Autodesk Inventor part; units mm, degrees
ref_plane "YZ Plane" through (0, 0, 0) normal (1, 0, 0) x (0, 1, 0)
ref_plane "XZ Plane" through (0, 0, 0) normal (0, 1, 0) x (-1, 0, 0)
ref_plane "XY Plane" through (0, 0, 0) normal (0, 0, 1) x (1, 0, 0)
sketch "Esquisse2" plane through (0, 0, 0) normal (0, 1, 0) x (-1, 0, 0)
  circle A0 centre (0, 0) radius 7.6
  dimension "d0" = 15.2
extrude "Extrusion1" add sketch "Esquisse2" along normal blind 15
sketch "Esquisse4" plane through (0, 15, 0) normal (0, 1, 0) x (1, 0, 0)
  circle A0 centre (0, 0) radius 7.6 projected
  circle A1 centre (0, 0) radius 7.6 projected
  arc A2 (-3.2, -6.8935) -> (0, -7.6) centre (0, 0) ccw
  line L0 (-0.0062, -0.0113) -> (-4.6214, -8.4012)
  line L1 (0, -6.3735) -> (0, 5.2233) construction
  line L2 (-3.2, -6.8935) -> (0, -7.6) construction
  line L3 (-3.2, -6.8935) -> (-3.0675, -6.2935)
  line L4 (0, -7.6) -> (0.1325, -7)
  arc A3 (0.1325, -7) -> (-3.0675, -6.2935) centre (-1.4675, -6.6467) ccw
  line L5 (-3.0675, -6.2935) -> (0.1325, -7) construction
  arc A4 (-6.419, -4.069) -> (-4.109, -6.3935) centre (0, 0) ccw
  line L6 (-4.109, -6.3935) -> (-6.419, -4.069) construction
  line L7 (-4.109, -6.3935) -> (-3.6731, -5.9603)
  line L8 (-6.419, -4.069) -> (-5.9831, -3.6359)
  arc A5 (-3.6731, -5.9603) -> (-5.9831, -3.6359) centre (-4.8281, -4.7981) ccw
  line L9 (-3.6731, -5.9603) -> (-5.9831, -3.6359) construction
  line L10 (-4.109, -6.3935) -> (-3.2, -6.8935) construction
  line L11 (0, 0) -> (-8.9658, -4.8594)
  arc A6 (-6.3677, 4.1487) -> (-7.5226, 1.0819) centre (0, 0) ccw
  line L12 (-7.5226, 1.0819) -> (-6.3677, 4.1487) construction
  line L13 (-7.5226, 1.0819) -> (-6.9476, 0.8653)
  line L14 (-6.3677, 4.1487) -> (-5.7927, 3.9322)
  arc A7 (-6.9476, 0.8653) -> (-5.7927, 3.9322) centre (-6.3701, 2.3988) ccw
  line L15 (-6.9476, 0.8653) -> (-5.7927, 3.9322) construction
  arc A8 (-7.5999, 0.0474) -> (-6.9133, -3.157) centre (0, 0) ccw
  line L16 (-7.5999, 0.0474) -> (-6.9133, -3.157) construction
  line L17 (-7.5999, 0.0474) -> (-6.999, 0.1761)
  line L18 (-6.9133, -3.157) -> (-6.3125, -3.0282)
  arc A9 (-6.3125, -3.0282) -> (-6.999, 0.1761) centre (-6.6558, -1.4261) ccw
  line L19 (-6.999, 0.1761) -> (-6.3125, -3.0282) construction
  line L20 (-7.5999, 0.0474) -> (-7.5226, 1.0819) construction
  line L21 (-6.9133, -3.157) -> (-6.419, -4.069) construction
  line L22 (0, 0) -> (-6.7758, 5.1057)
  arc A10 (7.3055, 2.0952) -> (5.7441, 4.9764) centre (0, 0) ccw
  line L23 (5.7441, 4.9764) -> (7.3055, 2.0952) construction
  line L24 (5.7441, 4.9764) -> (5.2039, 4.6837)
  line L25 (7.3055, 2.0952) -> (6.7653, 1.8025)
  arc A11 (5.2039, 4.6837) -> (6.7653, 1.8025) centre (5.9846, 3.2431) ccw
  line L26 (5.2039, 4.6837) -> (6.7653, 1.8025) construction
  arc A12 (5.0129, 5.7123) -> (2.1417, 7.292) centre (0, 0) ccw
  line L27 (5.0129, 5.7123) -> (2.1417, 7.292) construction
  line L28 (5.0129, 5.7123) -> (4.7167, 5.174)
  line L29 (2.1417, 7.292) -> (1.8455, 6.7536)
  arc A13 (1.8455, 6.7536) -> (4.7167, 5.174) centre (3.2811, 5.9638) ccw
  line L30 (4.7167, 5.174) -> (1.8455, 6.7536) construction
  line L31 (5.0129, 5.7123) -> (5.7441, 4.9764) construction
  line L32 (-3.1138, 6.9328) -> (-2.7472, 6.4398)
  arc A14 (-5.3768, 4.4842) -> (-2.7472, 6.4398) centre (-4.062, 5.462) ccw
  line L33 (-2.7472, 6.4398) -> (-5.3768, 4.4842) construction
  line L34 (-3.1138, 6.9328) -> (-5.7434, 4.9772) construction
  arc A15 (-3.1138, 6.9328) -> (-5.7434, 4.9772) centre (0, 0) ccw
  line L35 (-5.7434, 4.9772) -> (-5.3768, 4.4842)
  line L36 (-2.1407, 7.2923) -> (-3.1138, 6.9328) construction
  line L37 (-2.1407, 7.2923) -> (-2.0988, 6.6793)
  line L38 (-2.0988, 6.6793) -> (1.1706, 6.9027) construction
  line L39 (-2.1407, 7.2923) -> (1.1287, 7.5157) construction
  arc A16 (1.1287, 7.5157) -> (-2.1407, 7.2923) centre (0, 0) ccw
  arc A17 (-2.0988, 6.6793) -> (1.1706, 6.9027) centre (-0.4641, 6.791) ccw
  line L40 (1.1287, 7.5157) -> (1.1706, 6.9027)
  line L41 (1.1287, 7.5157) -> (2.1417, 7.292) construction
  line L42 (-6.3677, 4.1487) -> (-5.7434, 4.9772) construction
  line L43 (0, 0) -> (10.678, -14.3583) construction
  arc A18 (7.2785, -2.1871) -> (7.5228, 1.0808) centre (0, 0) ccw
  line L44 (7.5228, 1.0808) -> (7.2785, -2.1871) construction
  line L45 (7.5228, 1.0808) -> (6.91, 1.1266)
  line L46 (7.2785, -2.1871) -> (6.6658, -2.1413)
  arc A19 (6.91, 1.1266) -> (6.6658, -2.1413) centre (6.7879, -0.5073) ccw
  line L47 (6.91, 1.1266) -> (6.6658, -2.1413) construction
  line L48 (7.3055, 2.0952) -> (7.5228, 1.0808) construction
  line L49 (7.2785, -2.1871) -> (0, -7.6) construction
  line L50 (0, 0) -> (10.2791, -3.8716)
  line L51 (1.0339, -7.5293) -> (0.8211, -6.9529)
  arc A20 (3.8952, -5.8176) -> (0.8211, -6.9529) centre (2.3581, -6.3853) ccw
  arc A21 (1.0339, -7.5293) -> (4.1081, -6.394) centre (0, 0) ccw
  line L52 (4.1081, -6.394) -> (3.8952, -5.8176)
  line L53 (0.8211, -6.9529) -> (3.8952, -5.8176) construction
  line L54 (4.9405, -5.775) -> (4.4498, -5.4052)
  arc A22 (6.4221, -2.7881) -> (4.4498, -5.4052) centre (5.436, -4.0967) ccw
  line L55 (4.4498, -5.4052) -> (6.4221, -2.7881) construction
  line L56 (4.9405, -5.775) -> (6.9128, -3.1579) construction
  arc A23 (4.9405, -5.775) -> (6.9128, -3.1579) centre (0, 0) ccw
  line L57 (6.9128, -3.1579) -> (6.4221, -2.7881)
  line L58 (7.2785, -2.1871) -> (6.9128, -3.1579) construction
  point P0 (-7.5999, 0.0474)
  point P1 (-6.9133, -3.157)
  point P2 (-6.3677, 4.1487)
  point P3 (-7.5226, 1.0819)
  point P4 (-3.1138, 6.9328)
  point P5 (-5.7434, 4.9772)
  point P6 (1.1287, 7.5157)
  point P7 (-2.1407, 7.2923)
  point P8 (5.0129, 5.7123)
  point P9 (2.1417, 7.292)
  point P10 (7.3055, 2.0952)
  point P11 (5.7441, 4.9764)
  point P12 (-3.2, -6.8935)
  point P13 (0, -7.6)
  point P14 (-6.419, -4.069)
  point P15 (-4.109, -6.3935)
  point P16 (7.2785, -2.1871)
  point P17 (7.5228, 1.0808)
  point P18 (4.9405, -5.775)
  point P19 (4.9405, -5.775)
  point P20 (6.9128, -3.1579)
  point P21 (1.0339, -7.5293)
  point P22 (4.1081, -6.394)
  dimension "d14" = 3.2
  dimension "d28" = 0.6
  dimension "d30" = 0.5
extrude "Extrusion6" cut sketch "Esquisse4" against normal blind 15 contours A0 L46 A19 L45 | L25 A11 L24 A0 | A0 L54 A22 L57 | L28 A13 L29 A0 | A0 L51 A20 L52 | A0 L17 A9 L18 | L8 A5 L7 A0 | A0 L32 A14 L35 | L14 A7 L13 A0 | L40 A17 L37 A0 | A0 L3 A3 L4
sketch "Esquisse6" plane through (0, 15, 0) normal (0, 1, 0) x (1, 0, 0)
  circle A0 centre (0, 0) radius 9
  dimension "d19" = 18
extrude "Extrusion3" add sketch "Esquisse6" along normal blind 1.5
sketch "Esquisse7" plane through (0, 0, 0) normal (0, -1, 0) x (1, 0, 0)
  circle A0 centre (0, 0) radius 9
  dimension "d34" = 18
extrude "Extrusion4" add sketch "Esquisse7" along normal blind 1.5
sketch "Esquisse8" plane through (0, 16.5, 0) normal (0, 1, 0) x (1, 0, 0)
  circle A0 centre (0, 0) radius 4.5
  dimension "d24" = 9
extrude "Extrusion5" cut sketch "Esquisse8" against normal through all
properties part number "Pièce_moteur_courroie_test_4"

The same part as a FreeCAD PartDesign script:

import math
import FreeCAD as App
import Part
import Sketcher

V = App.Vector
Q = App.Units.Quantity

doc = App.newDocument("Part")
body = doc.addObject("PartDesign::Body", "Body")

# Sketch on XZ plane
sketch1 = doc.addObject("Sketcher::SketchObject", "Sketch")
body.addObject(sketch1)
sketch1.AttachmentSupport = (doc.XZ_Plane, [""])
sketch1.MapMode = "FlatFace"
sketch1.addGeometry(Part.Circle(V(0, 0, 0), V(0, 0, 1), 7.6), False)
sketch1.addConstraint(Sketcher.Constraint("Coincident", 0, 3, -1, 1))
sketch1.addConstraint(Sketcher.Constraint("Diameter", 0, 15.2))
pad1 = doc.addObject("PartDesign::Pad", "Pad")
body.addObject(pad1)
pad1.Profile = sketch1
pad1.Length = 15
pad1.Reversed = True

# Sketch on XZ plane
sketch2 = doc.addObject("Sketcher::SketchObject", "Sketch001")
body.addObject(sketch2)
sketch2.AttachmentSupport = (doc.XZ_Plane, [""])
sketch2.MapMode = "FlatFace"
sketch2.AttachmentOffset = App.Placement(V(0, 0, -15), App.Rotation())
sketch2.addGeometry(Part.ArcOfCircle(Part.Circle(V(0, 0, 0), V(0, 0, 1), 7.6), math.radians(-8.175734), math.radians(16.724879)), False)
sketch2.addGeometry(Part.LineSegment(V(7.5228, -1.0808, 0), V(6.91, -1.1266, 0)), False)
sketch2.addGeometry(Part.ArcOfCircle(Part.Circle(V(6.7879, 0.5073, 0), V(0, 0, 1), 1.638456), math.radians(94.273462), math.radians(274.273723)), False)
sketch2.addGeometry(Part.LineSegment(V(6.6658, 2.1413, 0), V(7.2785, 2.1871, 0)), False)
sketch2.addGeometry(Part.LineSegment(V(6.7653, -1.8025, 0), V(7.3055, -2.0952, 0)), False)
sketch2.addGeometry(Part.ArcOfCircle(Part.Circle(V(0, 0, 0), V(0, 0, 1), 7.6), math.radians(-40.904014), math.radians(-16.002765)), False)
sketch2.addGeometry(Part.LineSegment(V(5.7441, -4.9764, 0), V(5.2039, -4.6837, 0)), False)
sketch2.addGeometry(Part.ArcOfCircle(Part.Circle(V(5.9846, -3.2431, 0), V(0, 0, 1), 1.638542), math.radians(61.545541), math.radians(241.545541)), False)
sketch2.addGeometry(Part.ArcOfCircle(Part.Circle(V(0, 0, 0), V(0, 0, 1), 7.6), math.radians(24.551832), math.radians(49.453084)), False)
sketch2.addGeometry(Part.LineSegment(V(6.9128, 3.1579, 0), V(6.4221, 2.7881, 0)), False)
sketch2.addGeometry(Part.ArcOfCircle(Part.Circle(V(5.436, 4.0967, 0), V(0, 0, 1), 1.638544), math.radians(127.004874), math.radians(306.999977)), False)
sketch2.addGeometry(Part.LineSegment(V(4.4498, 5.4052, 0), V(4.9405, 5.775, 0)), False)
sketch2.addGeometry(Part.LineSegment(V(4.7167, -5.174, 0), V(5.0129, -5.7123, 0)), False)
sketch2.addGeometry(Part.ArcOfCircle(Part.Circle(V(0, 0, 0), V(0, 0, 1), 7.6), math.radians(-73.6322), math.radians(-48.731027)), False)
sketch2.addGeometry(Part.LineSegment(V(2.1417, -7.292, 0), V(1.8455, -6.7536, 0)), False)
sketch2.addGeometry(Part.ArcOfCircle(Part.Circle(V(3.2811, -5.9638, 0), V(0, 0, 1), 1.638515), math.radians(28.817534), math.radians(208.817534)), False)
sketch2.addGeometry(Part.ArcOfCircle(Part.Circle(V(0, 0, 0), V(0, 0, 1), 7.6), math.radians(57.279541), math.radians(82.181221)), False)
sketch2.addGeometry(Part.LineSegment(V(4.1081, 6.394, 0), V(3.8952, 5.8176, 0)), False)
sketch2.addGeometry(Part.ArcOfCircle(Part.Circle(V(2.3581, 6.3853, 0), V(0, 0, 1), 1.638585), math.radians(159.731274), math.radians(339.729206)), False)
sketch2.addGeometry(Part.LineSegment(V(0.8211, 6.9529, 0), V(1.0339, 7.5293, 0)), False)
sketch2.addGeometry(Part.ArcOfCircle(Part.Circle(V(0, 0, 0), V(0, 0, 1), 7.6), math.radians(155.455905), math.radians(180.357345)), False)
sketch2.addGeometry(Part.LineSegment(V(-6.9133, 3.157, 0), V(-6.3125, 3.0282, 0)), False)
sketch2.addGeometry(Part.ArcOfCircle(Part.Circle(V(-6.6558, 1.4261, 0), V(0, 0, 1), 1.638469), math.radians(-102.090361), math.radians(77.905487)), False)
sketch2.addGeometry(Part.LineSegment(V(-6.999, -0.1761, 0), V(-7.5999, -0.0474, 0)), False)
sketch2.addGeometry(Part.LineSegment(V(-5.9831, 3.6359, 0), V(-6.419, 4.069, 0)), False)
sketch2.addGeometry(Part.ArcOfCircle(Part.Circle(V(0, 0, 0), V(0, 0, 1), 7.6), math.radians(122.728205), math.radians(147.629416)), False)
sketch2.addGeometry(Part.LineSegment(V(-4.109, 6.3935, 0), V(-3.6731, 5.9603, 0)), False)
sketch2.addGeometry(Part.ArcOfCircle(Part.Circle(V(-4.8281, 4.7981, 0), V(0, 0, 1), 1.638516), math.radians(-134.821971), math.radians(45.178029)), False)
sketch2.addGeometry(Part.ArcOfCircle(Part.Circle(V(0, 0, 0), V(0, 0, 1), 7.6), math.radians(-139.087972), math.radians(-114.186771)), False)
sketch2.addGeometry(Part.LineSegment(V(-5.7434, -4.9772, 0), V(-5.3768, -4.4842, 0)), False)
sketch2.addGeometry(Part.ArcOfCircle(Part.Circle(V(-4.062, -5.462, 0), V(0, 0, 1), 1.638533), math.radians(-36.637711), math.radians(143.362289)), False)
sketch2.addGeometry(Part.LineSegment(V(-2.7472, -6.4398, 0), V(-3.1138, -6.9328, 0)), False)
sketch2.addGeometry(Part.LineSegment(V(-5.7927, -3.9322, 0), V(-6.3677, -4.1487, 0)), False)
sketch2.addGeometry(Part.ArcOfCircle(Part.Circle(V(0, 0, 0), V(0, 0, 1), 7.6), math.radians(-171.815843), math.radians(-146.91485)), False)
sketch2.addGeometry(Part.LineSegment(V(-7.5226, -1.0819, 0), V(-6.9476, -0.8653, 0)), False)
sketch2.addGeometry(Part.ArcOfCircle(Part.Circle(V(-6.3701, -2.3988, 0), V(0, 0, 1), 1.638636), math.radians(-69.366193), math.radians(110.635847)), False)
sketch2.addGeometry(Part.LineSegment(V(1.1706, -6.9027, 0), V(1.1287, -7.5157, 0)), False)
sketch2.addGeometry(Part.ArcOfCircle(Part.Circle(V(0, 0, 0), V(0, 0, 1), 7.6), math.radians(-106.359929), math.radians(-81.459207)), False)
sketch2.addGeometry(Part.LineSegment(V(-2.1407, -7.2923, 0), V(-2.0988, -6.6793, 0)), False)
sketch2.addGeometry(Part.ArcOfCircle(Part.Circle(V(-0.4641, -6.791, 0), V(0, 0, 1), 1.638512), math.radians(-3.908978), math.radians(176.091022)), False)
sketch2.addGeometry(Part.ArcOfCircle(Part.Circle(V(0, 0, 0), V(0, 0, 1), 7.6), math.radians(90), math.radians(114.900984)), False)
sketch2.addGeometry(Part.LineSegment(V(0, 7.6, 0), V(0.1325, 7, 0)), False)
sketch2.addGeometry(Part.ArcOfCircle(Part.Circle(V(-1.4675, 6.6467, 0), V(0, 0, 1), 1.638542), math.radians(-167.5516), math.radians(12.451815)), False)
sketch2.addGeometry(Part.LineSegment(V(-3.0675, 6.2935, 0), V(-3.2, 6.8935, 0)), False)
sketch2.addConstraint(Sketcher.Constraint("Coincident", 0, 1, 1, 1))
sketch2.addConstraint(Sketcher.Constraint("Tangent", 1, 2, 2, 2))
sketch2.addConstraint(Sketcher.Constraint("Tangent", 2, 1, 3, 1))
sketch2.addConstraint(Sketcher.Constraint("Coincident", 3, 2, 0, 2))
sketch2.addConstraint(Sketcher.Constraint("Coincident", 4, 2, 5, 2))
sketch2.addConstraint(Sketcher.Constraint("Coincident", 5, 1, 6, 1))
sketch2.addConstraint(Sketcher.Constraint("Tangent", 6, 2, 7, 2))
sketch2.addConstraint(Sketcher.Constraint("Tangent", 7, 1, 4, 1))
sketch2.addConstraint(Sketcher.Constraint("Coincident", 8, 1, 9, 1))
sketch2.addConstraint(Sketcher.Constraint("Tangent", 9, 2, 10, 2))
sketch2.addConstraint(Sketcher.Constraint("Tangent", 10, 1, 11, 1))
sketch2.addConstraint(Sketcher.Constraint("Coincident", 11, 2, 8, 2))
sketch2.addConstraint(Sketcher.Constraint("Coincident", 12, 2, 13, 2))
sketch2.addConstraint(Sketcher.Constraint("Coincident", 13, 1, 14, 1))
sketch2.addConstraint(Sketcher.Constraint("Tangent", 14, 2, 15, 2))
sketch2.addConstraint(Sketcher.Constraint("Tangent", 15, 1, 12, 1))
sketch2.addConstraint(Sketcher.Constraint("Coincident", 16, 1, 17, 1))
sketch2.addConstraint(Sketcher.Constraint("Tangent", 17, 2, 18, 2))
sketch2.addConstraint(Sketcher.Constraint("Tangent", 18, 1, 19, 1))
sketch2.addConstraint(Sketcher.Constraint("Coincident", 19, 2, 16, 2))
sketch2.addConstraint(Sketcher.Constraint("Coincident", 20, 1, 21, 1))
sketch2.addConstraint(Sketcher.Constraint("Tangent", 21, 2, 22, 2))
sketch2.addConstraint(Sketcher.Constraint("Tangent", 22, 1, 23, 1))
sketch2.addConstraint(Sketcher.Constraint("Coincident", 23, 2, 20, 2))
sketch2.addConstraint(Sketcher.Constraint("Coincident", 24, 2, 25, 2))
sketch2.addConstraint(Sketcher.Constraint("Coincident", 25, 1, 26, 1))
sketch2.addConstraint(Sketcher.Constraint("Tangent", 26, 2, 27, 2))
sketch2.addConstraint(Sketcher.Constraint("Tangent", 27, 1, 24, 1))
sketch2.addConstraint(Sketcher.Constraint("Coincident", 28, 1, 29, 1))
sketch2.addConstraint(Sketcher.Constraint("Tangent", 29, 2, 30, 2))
sketch2.addConstraint(Sketcher.Constraint("Tangent", 30, 1, 31, 1))
sketch2.addConstraint(Sketcher.Constraint("Coincident", 31, 2, 28, 2))
sketch2.addConstraint(Sketcher.Constraint("Coincident", 32, 2, 33, 2))
sketch2.addConstraint(Sketcher.Constraint("Coincident", 33, 1, 34, 1))
sketch2.addConstraint(Sketcher.Constraint("Tangent", 34, 2, 35, 2))
sketch2.addConstraint(Sketcher.Constraint("Tangent", 35, 1, 32, 1))
sketch2.addConstraint(Sketcher.Constraint("Coincident", 36, 2, 37, 2))
sketch2.addConstraint(Sketcher.Constraint("Coincident", 37, 1, 38, 1))
sketch2.addConstraint(Sketcher.Constraint("Tangent", 38, 2, 39, 2))
sketch2.addConstraint(Sketcher.Constraint("Tangent", 39, 1, 36, 1))
sketch2.addConstraint(Sketcher.Constraint("Coincident", 40, 1, 41, 1))
sketch2.addConstraint(Sketcher.Constraint("Tangent", 41, 2, 42, 2))
sketch2.addConstraint(Sketcher.Constraint("Tangent", 42, 1, 43, 1))
sketch2.addConstraint(Sketcher.Constraint("Coincident", 43, 2, 40, 2))
sketch2.addConstraint(Sketcher.Constraint("Coincident", 0, 3, -1, 1))
sketch2.addConstraint(Sketcher.Constraint("Coincident", 5, 3, -1, 1))
sketch2.addConstraint(Sketcher.Constraint("Coincident", 8, 3, -1, 1))
sketch2.addConstraint(Sketcher.Constraint("Coincident", 13, 3, -1, 1))
sketch2.addConstraint(Sketcher.Constraint("Coincident", 16, 3, -1, 1))
sketch2.addConstraint(Sketcher.Constraint("Coincident", 20, 3, -1, 1))
sketch2.addConstraint(Sketcher.Constraint("Coincident", 25, 3, -1, 1))
sketch2.addConstraint(Sketcher.Constraint("Coincident", 28, 3, -1, 1))
sketch2.addConstraint(Sketcher.Constraint("Coincident", 33, 3, -1, 1))
sketch2.addConstraint(Sketcher.Constraint("Coincident", 37, 3, -1, 1))
sketch2.addConstraint(Sketcher.Constraint("Coincident", 40, 3, -1, 1))
sketch2.addConstraint(Sketcher.Constraint("Equal", 0, 5))
sketch2.addConstraint(Sketcher.Constraint("Equal", 2, 7))
sketch2.addConstraint(Sketcher.Constraint("Equal", 5, 8))
sketch2.addConstraint(Sketcher.Constraint("Equal", 7, 10))
sketch2.addConstraint(Sketcher.Constraint("Equal", 8, 13))
sketch2.addConstraint(Sketcher.Constraint("Equal", 10, 15))
sketch2.addConstraint(Sketcher.Constraint("Equal", 13, 16))
sketch2.addConstraint(Sketcher.Constraint("Equal", 15, 18))
sketch2.addConstraint(Sketcher.Constraint("Equal", 16, 20))
sketch2.addConstraint(Sketcher.Constraint("Equal", 18, 22))
sketch2.addConstraint(Sketcher.Constraint("Equal", 20, 25))
sketch2.addConstraint(Sketcher.Constraint("Equal", 22, 27))
sketch2.addConstraint(Sketcher.Constraint("Equal", 25, 28))
sketch2.addConstraint(Sketcher.Constraint("Equal", 27, 30))
sketch2.addConstraint(Sketcher.Constraint("Equal", 28, 33))
sketch2.addConstraint(Sketcher.Constraint("Equal", 30, 35))
sketch2.addConstraint(Sketcher.Constraint("Equal", 33, 37))
sketch2.addConstraint(Sketcher.Constraint("Equal", 35, 39))
sketch2.addConstraint(Sketcher.Constraint("Equal", 37, 40))
sketch2.addConstraint(Sketcher.Constraint("Equal", 39, 42))
sketch2.addConstraint(Sketcher.Constraint("PointOnObject", 40, 1, -2))
sketch2.addConstraint(Sketcher.Constraint("Parallel", 1, 3))
sketch2.addConstraint(Sketcher.Constraint("Parallel", 4, 6))
sketch2.addConstraint(Sketcher.Constraint("Parallel", 9, 11))
sketch2.addConstraint(Sketcher.Constraint("Parallel", 12, 14))
sketch2.addConstraint(Sketcher.Constraint("Parallel", 17, 19))
sketch2.addConstraint(Sketcher.Constraint("Parallel", 21, 23))
sketch2.addConstraint(Sketcher.Constraint("Parallel", 24, 26))
sketch2.addConstraint(Sketcher.Constraint("Parallel", 29, 31))
sketch2.addConstraint(Sketcher.Constraint("Parallel", 32, 34))
sketch2.addConstraint(Sketcher.Constraint("Parallel", 36, 38))
sketch2.addConstraint(Sketcher.Constraint("Parallel", 41, 43))
sketch2.addConstraint(Sketcher.Constraint("Equal", 1, 3))
sketch2.addConstraint(Sketcher.Constraint("Equal", 3, 4))
sketch2.addConstraint(Sketcher.Constraint("Equal", 4, 6))
sketch2.addConstraint(Sketcher.Constraint("Equal", 6, 9))
sketch2.addConstraint(Sketcher.Constraint("Equal", 9, 11))
sketch2.addConstraint(Sketcher.Constraint("Equal", 11, 12))
sketch2.addConstraint(Sketcher.Constraint("Equal", 12, 14))
sketch2.addConstraint(Sketcher.Constraint("Equal", 14, 17))
sketch2.addConstraint(Sketcher.Constraint("Equal", 17, 19))
sketch2.addConstraint(Sketcher.Constraint("Equal", 19, 21))
sketch2.addConstraint(Sketcher.Constraint("Equal", 21, 23))
sketch2.addConstraint(Sketcher.Constraint("Equal", 23, 24))
sketch2.addConstraint(Sketcher.Constraint("Equal", 24, 26))
sketch2.addConstraint(Sketcher.Constraint("Equal", 26, 29))
sketch2.addConstraint(Sketcher.Constraint("Equal", 29, 31))
sketch2.addConstraint(Sketcher.Constraint("Equal", 31, 32))
sketch2.addConstraint(Sketcher.Constraint("Equal", 32, 34))
sketch2.addConstraint(Sketcher.Constraint("Equal", 34, 36))
sketch2.addConstraint(Sketcher.Constraint("Equal", 36, 38))
sketch2.addConstraint(Sketcher.Constraint("Equal", 38, 41))
sketch2.addConstraint(Sketcher.Constraint("Equal", 41, 43))
sketch2.addConstraint(Sketcher.Constraint("DistanceX", 43, 2, -1, 1, 3.2))
sketch2.addConstraint(Sketcher.Constraint("Radius", 0, 7.6))
sketch2.addConstraint(Sketcher.Constraint("DistanceY", -1, 1, 41, 2, 7.0))
sketch2.addConstraint(Sketcher.Constraint("Angle", 21, Q("-12.1 deg")))
sketch2.addConstraint(Sketcher.Constraint("Angle", 4, Q("-28.4504 deg")))
sketch2.addConstraint(Sketcher.Constraint("Angle", 34, Q("20.6412 deg")))
sketch2.addConstraint(Sketcher.Constraint("Angle", 36, Q("-93.9102 deg")))
sketch2.addConstraint(Sketcher.Constraint("DistanceX", -1, 1, 1, 2, 6.91))
sketch2.addConstraint(Sketcher.Constraint("DistanceX", -1, 1, 10, 3, 5.436))
sketch2.addConstraint(Sketcher.Constraint("DistanceX", -1, 1, 15, 3, 3.281))
sketch2.addConstraint(Sketcher.Constraint("DistanceX", -1, 1, 18, 3, 2.358))
sketch2.addConstraint(Sketcher.Constraint("DistanceX", 27, 3, -1, 1, 4.828))
sketch2.addConstraint(Sketcher.Constraint("DistanceX", 30, 3, -1, 1, 4.062))
pocket1 = doc.addObject("PartDesign::Pocket", "Pocket")
body.addObject(pocket1)
pocket1.Profile = sketch2
pocket1.Length = 15
pocket1.Reversed = True

# Sketch on XZ plane
sketch3 = doc.addObject("Sketcher::SketchObject", "Sketch002")
body.addObject(sketch3)
sketch3.AttachmentSupport = (doc.XZ_Plane, [""])
sketch3.MapMode = "FlatFace"
sketch3.AttachmentOffset = App.Placement(V(0, 0, -15), App.Rotation())
sketch3.addGeometry(Part.Circle(V(0, 0, 0), V(0, 0, 1), 9), False)
sketch3.addConstraint(Sketcher.Constraint("Coincident", 0, 3, -1, 1))
sketch3.addConstraint(Sketcher.Constraint("Diameter", 0, 18.0))
pad2 = doc.addObject("PartDesign::Pad", "Pad001")
body.addObject(pad2)
pad2.Profile = sketch3
pad2.Length = 1.5
pad2.Reversed = True

# Sketch on XZ plane
sketch4 = doc.addObject("Sketcher::SketchObject", "Sketch003")
body.addObject(sketch4)
sketch4.AttachmentSupport = (doc.XZ_Plane, [""])
sketch4.MapMode = "FlatFace"
sketch4.addGeometry(Part.Circle(V(0, 0, 0), V(0, 0, 1), 9), False)
sketch4.addConstraint(Sketcher.Constraint("Coincident", 0, 3, -1, 1))
sketch4.addConstraint(Sketcher.Constraint("Diameter", 0, 18.0))
pad3 = doc.addObject("PartDesign::Pad", "Pad002")
body.addObject(pad3)
pad3.Profile = sketch4
pad3.Length = 1.5

# Sketch on XZ plane
sketch5 = doc.addObject("Sketcher::SketchObject", "Sketch004")
body.addObject(sketch5)
sketch5.AttachmentSupport = (doc.XZ_Plane, [""])
sketch5.MapMode = "FlatFace"
sketch5.AttachmentOffset = App.Placement(V(0, 0, -16.5), App.Rotation())
sketch5.addGeometry(Part.Circle(V(0, 0, 0), V(0, 0, 1), 4.5), False)
sketch5.addConstraint(Sketcher.Constraint("Coincident", 0, 3, -1, 1))
sketch5.addConstraint(Sketcher.Constraint("Diameter", 0, 9.0))
pocket2 = doc.addObject("PartDesign::Pocket", "Pocket001")
body.addObject(pocket2)
pocket2.Profile = sketch5
pocket2.Type = "ThroughAll"
pocket2.Reversed = True

doc.recompute()
